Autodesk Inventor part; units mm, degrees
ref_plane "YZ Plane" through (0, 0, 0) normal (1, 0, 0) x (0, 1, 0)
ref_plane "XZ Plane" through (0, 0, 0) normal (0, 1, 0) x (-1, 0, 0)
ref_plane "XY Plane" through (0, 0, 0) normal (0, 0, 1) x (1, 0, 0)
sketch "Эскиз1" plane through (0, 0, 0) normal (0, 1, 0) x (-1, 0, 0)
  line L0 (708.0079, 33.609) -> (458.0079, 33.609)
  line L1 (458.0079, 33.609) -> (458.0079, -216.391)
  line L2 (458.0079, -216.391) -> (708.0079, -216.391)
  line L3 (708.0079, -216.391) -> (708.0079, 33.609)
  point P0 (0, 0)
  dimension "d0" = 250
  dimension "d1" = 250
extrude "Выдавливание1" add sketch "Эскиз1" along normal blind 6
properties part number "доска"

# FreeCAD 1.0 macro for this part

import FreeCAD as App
import Part
import Sketcher
from FreeCAD import Vector

doc = App.newDocument("Part")
body = doc.addObject("PartDesign::Body", "Body")

sketch1 = body.newObject("Sketcher::SketchObject", "Sketch")
sketch1.AttachmentSupport = (doc.getObject("XZ_Plane"), [""])
sketch1.MapMode = "FlatFace"
sketch1.addGeometry([
    Part.LineSegment(Vector(-708, -216, 0), Vector(-708, 34, 0)),
    Part.LineSegment(Vector(-708, 34, 0), Vector(-458, 34, 0)),
    Part.LineSegment(Vector(-458, 34, 0), Vector(-458, -216, 0)),
    Part.LineSegment(Vector(-458, -216, 0), Vector(-708, -216, 0)),
], False)
sketch1.addConstraint([
    Sketcher.Constraint("Coincident", 0, 2, 1, 1),
    Sketcher.Constraint("Coincident", 1, 2, 2, 1),
    Sketcher.Constraint("Coincident", 2, 2, 3, 1),
    Sketcher.Constraint("Coincident", 3, 2, 0, 1),
    Sketcher.Constraint("Vertical", 0),
    Sketcher.Constraint("Horizontal", 1),
    Sketcher.Constraint("Vertical", 2),
    Sketcher.Constraint("Horizontal", 3),
    Sketcher.Constraint("Equal", 3, 0),
    Sketcher.Constraint("DistanceX", 1, 1, 1, 2, 250.0),
    Sketcher.Constraint("DistanceX", 0, 2, -1, 1, 708.008),
    Sketcher.Constraint("DistanceY", -1, 1, 0, 2, 33.609),
])
pad1 = body.newObject("PartDesign::Pad", "Pad")
pad1.Profile = sketch1
pad1.Length = 6
pad1.Reversed = True

doc.recompute()
